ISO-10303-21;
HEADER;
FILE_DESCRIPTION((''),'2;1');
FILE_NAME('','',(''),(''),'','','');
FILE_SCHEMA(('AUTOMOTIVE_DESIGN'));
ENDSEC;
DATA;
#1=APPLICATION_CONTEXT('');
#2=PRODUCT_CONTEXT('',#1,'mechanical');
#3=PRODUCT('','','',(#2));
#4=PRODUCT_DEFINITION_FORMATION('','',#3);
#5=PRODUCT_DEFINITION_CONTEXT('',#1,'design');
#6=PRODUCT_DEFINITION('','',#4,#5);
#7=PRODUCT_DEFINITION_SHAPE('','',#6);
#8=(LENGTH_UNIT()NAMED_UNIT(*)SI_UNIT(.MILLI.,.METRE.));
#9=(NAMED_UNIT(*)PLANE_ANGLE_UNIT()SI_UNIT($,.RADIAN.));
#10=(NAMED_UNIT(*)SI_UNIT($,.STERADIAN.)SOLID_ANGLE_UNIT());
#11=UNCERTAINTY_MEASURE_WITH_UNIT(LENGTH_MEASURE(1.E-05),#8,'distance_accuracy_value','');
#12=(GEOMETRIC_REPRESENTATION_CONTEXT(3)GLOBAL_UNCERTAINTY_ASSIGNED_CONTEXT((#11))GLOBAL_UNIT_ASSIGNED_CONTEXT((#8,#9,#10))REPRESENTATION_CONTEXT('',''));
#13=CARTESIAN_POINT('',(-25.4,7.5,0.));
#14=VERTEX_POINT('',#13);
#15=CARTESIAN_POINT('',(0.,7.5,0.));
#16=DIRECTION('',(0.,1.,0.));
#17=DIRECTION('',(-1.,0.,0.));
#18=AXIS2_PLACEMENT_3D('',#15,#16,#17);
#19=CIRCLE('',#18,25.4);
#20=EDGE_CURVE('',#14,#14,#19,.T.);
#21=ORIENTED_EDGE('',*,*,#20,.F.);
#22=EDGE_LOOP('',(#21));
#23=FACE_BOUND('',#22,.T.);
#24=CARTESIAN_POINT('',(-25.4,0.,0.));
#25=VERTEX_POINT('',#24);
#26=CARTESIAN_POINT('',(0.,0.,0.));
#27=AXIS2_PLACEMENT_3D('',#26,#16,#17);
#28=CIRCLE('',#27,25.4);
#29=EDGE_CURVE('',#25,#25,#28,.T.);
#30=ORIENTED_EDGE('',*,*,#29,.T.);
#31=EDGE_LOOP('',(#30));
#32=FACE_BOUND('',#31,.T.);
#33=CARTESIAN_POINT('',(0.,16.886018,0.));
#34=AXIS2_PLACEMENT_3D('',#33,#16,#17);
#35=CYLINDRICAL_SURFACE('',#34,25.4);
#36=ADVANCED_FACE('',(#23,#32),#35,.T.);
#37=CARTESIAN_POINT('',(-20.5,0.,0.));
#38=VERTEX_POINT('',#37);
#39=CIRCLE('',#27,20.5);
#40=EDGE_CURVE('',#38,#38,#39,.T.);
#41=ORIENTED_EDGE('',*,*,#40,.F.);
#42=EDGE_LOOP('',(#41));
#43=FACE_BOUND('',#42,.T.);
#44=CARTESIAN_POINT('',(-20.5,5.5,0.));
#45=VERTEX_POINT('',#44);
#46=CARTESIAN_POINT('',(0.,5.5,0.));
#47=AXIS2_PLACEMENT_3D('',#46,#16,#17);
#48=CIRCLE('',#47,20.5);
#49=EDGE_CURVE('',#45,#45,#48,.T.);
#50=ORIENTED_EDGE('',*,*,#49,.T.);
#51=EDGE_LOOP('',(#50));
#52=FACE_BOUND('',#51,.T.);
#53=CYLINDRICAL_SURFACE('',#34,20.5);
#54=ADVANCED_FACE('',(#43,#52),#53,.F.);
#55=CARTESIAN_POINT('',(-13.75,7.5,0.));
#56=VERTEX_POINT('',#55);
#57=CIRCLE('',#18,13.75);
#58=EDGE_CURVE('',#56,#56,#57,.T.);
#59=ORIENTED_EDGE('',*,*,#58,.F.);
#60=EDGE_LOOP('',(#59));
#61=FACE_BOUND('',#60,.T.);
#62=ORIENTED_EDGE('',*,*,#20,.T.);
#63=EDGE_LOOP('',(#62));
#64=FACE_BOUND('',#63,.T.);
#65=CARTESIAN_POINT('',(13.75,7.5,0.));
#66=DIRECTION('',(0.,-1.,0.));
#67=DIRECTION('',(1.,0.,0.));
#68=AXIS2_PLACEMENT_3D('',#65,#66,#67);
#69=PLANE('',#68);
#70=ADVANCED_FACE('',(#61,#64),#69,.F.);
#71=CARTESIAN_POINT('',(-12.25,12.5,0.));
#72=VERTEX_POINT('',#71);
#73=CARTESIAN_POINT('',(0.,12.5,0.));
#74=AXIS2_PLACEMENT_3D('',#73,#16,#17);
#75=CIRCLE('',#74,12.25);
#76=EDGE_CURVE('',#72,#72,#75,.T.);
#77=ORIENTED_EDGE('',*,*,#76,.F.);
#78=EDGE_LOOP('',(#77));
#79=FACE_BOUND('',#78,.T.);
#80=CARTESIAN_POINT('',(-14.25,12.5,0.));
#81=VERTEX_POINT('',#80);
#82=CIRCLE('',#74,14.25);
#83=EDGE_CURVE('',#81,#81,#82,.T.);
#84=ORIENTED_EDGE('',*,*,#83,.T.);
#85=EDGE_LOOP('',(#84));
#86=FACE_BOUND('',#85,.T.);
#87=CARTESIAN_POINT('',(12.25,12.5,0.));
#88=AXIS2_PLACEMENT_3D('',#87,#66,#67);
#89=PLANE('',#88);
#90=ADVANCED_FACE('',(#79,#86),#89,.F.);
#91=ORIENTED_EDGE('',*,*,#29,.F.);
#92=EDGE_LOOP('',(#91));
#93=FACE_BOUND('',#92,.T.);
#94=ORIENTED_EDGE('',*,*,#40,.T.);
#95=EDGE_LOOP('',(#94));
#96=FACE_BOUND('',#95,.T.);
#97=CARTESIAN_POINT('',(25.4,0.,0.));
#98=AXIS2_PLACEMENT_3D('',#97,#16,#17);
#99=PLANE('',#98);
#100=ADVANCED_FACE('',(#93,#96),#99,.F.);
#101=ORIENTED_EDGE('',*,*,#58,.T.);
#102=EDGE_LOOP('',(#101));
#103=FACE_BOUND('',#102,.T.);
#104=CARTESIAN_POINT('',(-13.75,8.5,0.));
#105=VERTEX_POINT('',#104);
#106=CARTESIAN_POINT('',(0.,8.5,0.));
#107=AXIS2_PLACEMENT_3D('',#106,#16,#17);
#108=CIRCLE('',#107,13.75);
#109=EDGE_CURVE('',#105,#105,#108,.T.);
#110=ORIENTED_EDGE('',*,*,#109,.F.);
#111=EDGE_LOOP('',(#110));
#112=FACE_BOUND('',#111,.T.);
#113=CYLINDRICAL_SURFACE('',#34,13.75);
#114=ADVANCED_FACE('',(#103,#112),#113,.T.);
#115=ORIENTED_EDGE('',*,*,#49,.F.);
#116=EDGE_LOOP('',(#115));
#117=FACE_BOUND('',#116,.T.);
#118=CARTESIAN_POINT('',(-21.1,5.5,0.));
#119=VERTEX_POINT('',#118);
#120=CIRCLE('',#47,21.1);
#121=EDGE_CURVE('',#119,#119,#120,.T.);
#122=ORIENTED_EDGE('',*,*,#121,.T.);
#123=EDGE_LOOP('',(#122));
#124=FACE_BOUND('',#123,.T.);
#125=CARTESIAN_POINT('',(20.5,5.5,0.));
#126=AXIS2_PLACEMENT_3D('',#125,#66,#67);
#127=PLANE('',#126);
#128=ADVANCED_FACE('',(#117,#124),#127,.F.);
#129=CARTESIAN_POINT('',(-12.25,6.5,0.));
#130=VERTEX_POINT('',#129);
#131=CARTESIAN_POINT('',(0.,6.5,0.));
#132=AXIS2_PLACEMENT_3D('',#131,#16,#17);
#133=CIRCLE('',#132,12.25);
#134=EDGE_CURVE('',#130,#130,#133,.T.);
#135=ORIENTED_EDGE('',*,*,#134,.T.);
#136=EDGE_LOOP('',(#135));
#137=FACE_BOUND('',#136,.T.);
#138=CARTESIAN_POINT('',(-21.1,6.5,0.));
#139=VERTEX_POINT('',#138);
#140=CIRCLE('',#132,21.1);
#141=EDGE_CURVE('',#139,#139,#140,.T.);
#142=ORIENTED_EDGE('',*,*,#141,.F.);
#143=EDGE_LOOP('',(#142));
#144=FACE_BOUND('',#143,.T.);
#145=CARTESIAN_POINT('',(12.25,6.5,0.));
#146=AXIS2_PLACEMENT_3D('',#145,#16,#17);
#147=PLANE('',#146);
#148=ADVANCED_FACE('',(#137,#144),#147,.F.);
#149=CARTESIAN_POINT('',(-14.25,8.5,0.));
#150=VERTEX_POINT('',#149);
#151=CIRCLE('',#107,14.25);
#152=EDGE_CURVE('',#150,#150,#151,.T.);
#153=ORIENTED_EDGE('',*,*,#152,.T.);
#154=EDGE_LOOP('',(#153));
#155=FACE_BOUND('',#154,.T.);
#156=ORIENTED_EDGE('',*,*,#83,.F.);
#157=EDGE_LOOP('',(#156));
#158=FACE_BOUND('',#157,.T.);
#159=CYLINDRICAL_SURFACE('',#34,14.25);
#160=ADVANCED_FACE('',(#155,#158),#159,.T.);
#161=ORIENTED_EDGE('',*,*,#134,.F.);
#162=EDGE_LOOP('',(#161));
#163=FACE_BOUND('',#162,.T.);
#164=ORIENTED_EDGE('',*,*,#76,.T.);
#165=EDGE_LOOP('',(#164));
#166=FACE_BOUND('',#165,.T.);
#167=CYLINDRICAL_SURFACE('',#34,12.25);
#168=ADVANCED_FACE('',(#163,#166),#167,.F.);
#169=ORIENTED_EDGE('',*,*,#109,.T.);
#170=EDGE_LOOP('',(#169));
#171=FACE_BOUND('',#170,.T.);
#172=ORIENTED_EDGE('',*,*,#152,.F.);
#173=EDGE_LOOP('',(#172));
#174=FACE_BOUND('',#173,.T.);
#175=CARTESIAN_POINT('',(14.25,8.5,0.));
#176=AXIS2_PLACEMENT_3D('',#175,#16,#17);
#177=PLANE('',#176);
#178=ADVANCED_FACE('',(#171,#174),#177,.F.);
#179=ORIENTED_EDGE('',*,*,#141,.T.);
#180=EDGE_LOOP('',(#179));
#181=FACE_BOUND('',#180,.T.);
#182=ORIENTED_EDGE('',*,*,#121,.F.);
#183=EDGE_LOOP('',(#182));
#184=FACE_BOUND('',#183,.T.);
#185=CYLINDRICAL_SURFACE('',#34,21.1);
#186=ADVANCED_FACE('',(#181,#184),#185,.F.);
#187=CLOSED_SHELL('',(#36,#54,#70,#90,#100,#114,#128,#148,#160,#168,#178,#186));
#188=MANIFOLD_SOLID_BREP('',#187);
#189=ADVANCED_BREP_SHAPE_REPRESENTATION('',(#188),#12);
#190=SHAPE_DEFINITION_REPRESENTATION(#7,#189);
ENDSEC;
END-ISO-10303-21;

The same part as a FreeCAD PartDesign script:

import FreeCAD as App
import Part
import Sketcher
Q = App.Units.Quantity


def add_polygon(sketch, points):
    """Adds a closed chain of lines whose ends are joined by coincident constraints."""
    first, n = sketch.GeometryCount, len(points)
    for a, b in zip(points, points[1:] + points[:1]):
        sketch.addGeometry(Part.LineSegment(App.Vector(*a, 0), App.Vector(*b, 0)), False)
    for i in range(n):
        sketch.addConstraint(Sketcher.Constraint("Coincident", first + i, 2, first + (i + 1) % n, 1))

doc = App.newDocument("Part")
body = doc.addObject("PartDesign::Body", "Body")

sketch1 = body.newObject("Sketcher::SketchObject", "Sketch")
sketch1.AttachmentSupport = (doc.getObject("XY_Plane"), [""])
sketch1.MapMode = "FlatFace"
add_polygon(sketch1, [(20.5, 5.5), (20.5, 0), (25.4, 0), (25.4, 7.5), (13.75, 7.5), (13.75, 8.5), (14.25, 8.5), (14.25, 12.5), (12.25, 12.5), (12.25, 6.5), (21.1, 6.5), (21.1, 5.5)])
sketch1.addConstraint([
    Sketcher.Constraint("Vertical", 0),
    Sketcher.Constraint("Horizontal", 1),
    Sketcher.Constraint("Vertical", 2),
    Sketcher.Constraint("Horizontal", 3),
    Sketcher.Constraint("Vertical", 4),
    Sketcher.Constraint("Horizontal", 5),
    Sketcher.Constraint("Vertical", 6),
    Sketcher.Constraint("Horizontal", 7),
    Sketcher.Constraint("Vertical", 8),
    Sketcher.Constraint("Horizontal", 9),
    Sketcher.Constraint("Vertical", 10),
    Sketcher.Constraint("Horizontal", 11),
    Sketcher.Constraint("PointOnObject", 0, 2, -1),
    Sketcher.Constraint("Equal", 4, 10),
    Sketcher.Constraint("DistanceX", 7, 2, 7, 1, Q("2 mm")),
    Sketcher.Constraint("DistanceY", 4, 1, 4, 2, Q("1 mm")),
    Sketcher.Constraint("DistanceY", 6, 1, 6, 2, Q("4 mm")),
    Sketcher.Constraint("DistanceY", 8, 2, 8, 1, Q("6 mm")),
    Sketcher.Constraint("DistanceX", 1, 1, 1, 2, Q("4.9 mm")),
    Sketcher.Constraint("DistanceX", 5, 1, 5, 2, Q("0.5 mm")),
    Sketcher.Constraint("DistanceX", 11, 2, 11, 1, Q("0.6 mm")),
    Sketcher.Constraint("DistanceY", 0, 2, 0, 1, Q("5.5 mm")),
    Sketcher.Constraint("DistanceX", 3, 2, 3, 1, Q("11.65 mm")),
    Sketcher.Constraint("DistanceX", -1, 1, 0, 2, Q("20.5 mm")),
])
revolution = body.newObject("PartDesign::Revolution", "Revolution")
revolution.Profile = sketch1
revolution.ReferenceAxis = (sketch1, ["V_Axis"])
revolution.Angle = 360

doc.recompute()
